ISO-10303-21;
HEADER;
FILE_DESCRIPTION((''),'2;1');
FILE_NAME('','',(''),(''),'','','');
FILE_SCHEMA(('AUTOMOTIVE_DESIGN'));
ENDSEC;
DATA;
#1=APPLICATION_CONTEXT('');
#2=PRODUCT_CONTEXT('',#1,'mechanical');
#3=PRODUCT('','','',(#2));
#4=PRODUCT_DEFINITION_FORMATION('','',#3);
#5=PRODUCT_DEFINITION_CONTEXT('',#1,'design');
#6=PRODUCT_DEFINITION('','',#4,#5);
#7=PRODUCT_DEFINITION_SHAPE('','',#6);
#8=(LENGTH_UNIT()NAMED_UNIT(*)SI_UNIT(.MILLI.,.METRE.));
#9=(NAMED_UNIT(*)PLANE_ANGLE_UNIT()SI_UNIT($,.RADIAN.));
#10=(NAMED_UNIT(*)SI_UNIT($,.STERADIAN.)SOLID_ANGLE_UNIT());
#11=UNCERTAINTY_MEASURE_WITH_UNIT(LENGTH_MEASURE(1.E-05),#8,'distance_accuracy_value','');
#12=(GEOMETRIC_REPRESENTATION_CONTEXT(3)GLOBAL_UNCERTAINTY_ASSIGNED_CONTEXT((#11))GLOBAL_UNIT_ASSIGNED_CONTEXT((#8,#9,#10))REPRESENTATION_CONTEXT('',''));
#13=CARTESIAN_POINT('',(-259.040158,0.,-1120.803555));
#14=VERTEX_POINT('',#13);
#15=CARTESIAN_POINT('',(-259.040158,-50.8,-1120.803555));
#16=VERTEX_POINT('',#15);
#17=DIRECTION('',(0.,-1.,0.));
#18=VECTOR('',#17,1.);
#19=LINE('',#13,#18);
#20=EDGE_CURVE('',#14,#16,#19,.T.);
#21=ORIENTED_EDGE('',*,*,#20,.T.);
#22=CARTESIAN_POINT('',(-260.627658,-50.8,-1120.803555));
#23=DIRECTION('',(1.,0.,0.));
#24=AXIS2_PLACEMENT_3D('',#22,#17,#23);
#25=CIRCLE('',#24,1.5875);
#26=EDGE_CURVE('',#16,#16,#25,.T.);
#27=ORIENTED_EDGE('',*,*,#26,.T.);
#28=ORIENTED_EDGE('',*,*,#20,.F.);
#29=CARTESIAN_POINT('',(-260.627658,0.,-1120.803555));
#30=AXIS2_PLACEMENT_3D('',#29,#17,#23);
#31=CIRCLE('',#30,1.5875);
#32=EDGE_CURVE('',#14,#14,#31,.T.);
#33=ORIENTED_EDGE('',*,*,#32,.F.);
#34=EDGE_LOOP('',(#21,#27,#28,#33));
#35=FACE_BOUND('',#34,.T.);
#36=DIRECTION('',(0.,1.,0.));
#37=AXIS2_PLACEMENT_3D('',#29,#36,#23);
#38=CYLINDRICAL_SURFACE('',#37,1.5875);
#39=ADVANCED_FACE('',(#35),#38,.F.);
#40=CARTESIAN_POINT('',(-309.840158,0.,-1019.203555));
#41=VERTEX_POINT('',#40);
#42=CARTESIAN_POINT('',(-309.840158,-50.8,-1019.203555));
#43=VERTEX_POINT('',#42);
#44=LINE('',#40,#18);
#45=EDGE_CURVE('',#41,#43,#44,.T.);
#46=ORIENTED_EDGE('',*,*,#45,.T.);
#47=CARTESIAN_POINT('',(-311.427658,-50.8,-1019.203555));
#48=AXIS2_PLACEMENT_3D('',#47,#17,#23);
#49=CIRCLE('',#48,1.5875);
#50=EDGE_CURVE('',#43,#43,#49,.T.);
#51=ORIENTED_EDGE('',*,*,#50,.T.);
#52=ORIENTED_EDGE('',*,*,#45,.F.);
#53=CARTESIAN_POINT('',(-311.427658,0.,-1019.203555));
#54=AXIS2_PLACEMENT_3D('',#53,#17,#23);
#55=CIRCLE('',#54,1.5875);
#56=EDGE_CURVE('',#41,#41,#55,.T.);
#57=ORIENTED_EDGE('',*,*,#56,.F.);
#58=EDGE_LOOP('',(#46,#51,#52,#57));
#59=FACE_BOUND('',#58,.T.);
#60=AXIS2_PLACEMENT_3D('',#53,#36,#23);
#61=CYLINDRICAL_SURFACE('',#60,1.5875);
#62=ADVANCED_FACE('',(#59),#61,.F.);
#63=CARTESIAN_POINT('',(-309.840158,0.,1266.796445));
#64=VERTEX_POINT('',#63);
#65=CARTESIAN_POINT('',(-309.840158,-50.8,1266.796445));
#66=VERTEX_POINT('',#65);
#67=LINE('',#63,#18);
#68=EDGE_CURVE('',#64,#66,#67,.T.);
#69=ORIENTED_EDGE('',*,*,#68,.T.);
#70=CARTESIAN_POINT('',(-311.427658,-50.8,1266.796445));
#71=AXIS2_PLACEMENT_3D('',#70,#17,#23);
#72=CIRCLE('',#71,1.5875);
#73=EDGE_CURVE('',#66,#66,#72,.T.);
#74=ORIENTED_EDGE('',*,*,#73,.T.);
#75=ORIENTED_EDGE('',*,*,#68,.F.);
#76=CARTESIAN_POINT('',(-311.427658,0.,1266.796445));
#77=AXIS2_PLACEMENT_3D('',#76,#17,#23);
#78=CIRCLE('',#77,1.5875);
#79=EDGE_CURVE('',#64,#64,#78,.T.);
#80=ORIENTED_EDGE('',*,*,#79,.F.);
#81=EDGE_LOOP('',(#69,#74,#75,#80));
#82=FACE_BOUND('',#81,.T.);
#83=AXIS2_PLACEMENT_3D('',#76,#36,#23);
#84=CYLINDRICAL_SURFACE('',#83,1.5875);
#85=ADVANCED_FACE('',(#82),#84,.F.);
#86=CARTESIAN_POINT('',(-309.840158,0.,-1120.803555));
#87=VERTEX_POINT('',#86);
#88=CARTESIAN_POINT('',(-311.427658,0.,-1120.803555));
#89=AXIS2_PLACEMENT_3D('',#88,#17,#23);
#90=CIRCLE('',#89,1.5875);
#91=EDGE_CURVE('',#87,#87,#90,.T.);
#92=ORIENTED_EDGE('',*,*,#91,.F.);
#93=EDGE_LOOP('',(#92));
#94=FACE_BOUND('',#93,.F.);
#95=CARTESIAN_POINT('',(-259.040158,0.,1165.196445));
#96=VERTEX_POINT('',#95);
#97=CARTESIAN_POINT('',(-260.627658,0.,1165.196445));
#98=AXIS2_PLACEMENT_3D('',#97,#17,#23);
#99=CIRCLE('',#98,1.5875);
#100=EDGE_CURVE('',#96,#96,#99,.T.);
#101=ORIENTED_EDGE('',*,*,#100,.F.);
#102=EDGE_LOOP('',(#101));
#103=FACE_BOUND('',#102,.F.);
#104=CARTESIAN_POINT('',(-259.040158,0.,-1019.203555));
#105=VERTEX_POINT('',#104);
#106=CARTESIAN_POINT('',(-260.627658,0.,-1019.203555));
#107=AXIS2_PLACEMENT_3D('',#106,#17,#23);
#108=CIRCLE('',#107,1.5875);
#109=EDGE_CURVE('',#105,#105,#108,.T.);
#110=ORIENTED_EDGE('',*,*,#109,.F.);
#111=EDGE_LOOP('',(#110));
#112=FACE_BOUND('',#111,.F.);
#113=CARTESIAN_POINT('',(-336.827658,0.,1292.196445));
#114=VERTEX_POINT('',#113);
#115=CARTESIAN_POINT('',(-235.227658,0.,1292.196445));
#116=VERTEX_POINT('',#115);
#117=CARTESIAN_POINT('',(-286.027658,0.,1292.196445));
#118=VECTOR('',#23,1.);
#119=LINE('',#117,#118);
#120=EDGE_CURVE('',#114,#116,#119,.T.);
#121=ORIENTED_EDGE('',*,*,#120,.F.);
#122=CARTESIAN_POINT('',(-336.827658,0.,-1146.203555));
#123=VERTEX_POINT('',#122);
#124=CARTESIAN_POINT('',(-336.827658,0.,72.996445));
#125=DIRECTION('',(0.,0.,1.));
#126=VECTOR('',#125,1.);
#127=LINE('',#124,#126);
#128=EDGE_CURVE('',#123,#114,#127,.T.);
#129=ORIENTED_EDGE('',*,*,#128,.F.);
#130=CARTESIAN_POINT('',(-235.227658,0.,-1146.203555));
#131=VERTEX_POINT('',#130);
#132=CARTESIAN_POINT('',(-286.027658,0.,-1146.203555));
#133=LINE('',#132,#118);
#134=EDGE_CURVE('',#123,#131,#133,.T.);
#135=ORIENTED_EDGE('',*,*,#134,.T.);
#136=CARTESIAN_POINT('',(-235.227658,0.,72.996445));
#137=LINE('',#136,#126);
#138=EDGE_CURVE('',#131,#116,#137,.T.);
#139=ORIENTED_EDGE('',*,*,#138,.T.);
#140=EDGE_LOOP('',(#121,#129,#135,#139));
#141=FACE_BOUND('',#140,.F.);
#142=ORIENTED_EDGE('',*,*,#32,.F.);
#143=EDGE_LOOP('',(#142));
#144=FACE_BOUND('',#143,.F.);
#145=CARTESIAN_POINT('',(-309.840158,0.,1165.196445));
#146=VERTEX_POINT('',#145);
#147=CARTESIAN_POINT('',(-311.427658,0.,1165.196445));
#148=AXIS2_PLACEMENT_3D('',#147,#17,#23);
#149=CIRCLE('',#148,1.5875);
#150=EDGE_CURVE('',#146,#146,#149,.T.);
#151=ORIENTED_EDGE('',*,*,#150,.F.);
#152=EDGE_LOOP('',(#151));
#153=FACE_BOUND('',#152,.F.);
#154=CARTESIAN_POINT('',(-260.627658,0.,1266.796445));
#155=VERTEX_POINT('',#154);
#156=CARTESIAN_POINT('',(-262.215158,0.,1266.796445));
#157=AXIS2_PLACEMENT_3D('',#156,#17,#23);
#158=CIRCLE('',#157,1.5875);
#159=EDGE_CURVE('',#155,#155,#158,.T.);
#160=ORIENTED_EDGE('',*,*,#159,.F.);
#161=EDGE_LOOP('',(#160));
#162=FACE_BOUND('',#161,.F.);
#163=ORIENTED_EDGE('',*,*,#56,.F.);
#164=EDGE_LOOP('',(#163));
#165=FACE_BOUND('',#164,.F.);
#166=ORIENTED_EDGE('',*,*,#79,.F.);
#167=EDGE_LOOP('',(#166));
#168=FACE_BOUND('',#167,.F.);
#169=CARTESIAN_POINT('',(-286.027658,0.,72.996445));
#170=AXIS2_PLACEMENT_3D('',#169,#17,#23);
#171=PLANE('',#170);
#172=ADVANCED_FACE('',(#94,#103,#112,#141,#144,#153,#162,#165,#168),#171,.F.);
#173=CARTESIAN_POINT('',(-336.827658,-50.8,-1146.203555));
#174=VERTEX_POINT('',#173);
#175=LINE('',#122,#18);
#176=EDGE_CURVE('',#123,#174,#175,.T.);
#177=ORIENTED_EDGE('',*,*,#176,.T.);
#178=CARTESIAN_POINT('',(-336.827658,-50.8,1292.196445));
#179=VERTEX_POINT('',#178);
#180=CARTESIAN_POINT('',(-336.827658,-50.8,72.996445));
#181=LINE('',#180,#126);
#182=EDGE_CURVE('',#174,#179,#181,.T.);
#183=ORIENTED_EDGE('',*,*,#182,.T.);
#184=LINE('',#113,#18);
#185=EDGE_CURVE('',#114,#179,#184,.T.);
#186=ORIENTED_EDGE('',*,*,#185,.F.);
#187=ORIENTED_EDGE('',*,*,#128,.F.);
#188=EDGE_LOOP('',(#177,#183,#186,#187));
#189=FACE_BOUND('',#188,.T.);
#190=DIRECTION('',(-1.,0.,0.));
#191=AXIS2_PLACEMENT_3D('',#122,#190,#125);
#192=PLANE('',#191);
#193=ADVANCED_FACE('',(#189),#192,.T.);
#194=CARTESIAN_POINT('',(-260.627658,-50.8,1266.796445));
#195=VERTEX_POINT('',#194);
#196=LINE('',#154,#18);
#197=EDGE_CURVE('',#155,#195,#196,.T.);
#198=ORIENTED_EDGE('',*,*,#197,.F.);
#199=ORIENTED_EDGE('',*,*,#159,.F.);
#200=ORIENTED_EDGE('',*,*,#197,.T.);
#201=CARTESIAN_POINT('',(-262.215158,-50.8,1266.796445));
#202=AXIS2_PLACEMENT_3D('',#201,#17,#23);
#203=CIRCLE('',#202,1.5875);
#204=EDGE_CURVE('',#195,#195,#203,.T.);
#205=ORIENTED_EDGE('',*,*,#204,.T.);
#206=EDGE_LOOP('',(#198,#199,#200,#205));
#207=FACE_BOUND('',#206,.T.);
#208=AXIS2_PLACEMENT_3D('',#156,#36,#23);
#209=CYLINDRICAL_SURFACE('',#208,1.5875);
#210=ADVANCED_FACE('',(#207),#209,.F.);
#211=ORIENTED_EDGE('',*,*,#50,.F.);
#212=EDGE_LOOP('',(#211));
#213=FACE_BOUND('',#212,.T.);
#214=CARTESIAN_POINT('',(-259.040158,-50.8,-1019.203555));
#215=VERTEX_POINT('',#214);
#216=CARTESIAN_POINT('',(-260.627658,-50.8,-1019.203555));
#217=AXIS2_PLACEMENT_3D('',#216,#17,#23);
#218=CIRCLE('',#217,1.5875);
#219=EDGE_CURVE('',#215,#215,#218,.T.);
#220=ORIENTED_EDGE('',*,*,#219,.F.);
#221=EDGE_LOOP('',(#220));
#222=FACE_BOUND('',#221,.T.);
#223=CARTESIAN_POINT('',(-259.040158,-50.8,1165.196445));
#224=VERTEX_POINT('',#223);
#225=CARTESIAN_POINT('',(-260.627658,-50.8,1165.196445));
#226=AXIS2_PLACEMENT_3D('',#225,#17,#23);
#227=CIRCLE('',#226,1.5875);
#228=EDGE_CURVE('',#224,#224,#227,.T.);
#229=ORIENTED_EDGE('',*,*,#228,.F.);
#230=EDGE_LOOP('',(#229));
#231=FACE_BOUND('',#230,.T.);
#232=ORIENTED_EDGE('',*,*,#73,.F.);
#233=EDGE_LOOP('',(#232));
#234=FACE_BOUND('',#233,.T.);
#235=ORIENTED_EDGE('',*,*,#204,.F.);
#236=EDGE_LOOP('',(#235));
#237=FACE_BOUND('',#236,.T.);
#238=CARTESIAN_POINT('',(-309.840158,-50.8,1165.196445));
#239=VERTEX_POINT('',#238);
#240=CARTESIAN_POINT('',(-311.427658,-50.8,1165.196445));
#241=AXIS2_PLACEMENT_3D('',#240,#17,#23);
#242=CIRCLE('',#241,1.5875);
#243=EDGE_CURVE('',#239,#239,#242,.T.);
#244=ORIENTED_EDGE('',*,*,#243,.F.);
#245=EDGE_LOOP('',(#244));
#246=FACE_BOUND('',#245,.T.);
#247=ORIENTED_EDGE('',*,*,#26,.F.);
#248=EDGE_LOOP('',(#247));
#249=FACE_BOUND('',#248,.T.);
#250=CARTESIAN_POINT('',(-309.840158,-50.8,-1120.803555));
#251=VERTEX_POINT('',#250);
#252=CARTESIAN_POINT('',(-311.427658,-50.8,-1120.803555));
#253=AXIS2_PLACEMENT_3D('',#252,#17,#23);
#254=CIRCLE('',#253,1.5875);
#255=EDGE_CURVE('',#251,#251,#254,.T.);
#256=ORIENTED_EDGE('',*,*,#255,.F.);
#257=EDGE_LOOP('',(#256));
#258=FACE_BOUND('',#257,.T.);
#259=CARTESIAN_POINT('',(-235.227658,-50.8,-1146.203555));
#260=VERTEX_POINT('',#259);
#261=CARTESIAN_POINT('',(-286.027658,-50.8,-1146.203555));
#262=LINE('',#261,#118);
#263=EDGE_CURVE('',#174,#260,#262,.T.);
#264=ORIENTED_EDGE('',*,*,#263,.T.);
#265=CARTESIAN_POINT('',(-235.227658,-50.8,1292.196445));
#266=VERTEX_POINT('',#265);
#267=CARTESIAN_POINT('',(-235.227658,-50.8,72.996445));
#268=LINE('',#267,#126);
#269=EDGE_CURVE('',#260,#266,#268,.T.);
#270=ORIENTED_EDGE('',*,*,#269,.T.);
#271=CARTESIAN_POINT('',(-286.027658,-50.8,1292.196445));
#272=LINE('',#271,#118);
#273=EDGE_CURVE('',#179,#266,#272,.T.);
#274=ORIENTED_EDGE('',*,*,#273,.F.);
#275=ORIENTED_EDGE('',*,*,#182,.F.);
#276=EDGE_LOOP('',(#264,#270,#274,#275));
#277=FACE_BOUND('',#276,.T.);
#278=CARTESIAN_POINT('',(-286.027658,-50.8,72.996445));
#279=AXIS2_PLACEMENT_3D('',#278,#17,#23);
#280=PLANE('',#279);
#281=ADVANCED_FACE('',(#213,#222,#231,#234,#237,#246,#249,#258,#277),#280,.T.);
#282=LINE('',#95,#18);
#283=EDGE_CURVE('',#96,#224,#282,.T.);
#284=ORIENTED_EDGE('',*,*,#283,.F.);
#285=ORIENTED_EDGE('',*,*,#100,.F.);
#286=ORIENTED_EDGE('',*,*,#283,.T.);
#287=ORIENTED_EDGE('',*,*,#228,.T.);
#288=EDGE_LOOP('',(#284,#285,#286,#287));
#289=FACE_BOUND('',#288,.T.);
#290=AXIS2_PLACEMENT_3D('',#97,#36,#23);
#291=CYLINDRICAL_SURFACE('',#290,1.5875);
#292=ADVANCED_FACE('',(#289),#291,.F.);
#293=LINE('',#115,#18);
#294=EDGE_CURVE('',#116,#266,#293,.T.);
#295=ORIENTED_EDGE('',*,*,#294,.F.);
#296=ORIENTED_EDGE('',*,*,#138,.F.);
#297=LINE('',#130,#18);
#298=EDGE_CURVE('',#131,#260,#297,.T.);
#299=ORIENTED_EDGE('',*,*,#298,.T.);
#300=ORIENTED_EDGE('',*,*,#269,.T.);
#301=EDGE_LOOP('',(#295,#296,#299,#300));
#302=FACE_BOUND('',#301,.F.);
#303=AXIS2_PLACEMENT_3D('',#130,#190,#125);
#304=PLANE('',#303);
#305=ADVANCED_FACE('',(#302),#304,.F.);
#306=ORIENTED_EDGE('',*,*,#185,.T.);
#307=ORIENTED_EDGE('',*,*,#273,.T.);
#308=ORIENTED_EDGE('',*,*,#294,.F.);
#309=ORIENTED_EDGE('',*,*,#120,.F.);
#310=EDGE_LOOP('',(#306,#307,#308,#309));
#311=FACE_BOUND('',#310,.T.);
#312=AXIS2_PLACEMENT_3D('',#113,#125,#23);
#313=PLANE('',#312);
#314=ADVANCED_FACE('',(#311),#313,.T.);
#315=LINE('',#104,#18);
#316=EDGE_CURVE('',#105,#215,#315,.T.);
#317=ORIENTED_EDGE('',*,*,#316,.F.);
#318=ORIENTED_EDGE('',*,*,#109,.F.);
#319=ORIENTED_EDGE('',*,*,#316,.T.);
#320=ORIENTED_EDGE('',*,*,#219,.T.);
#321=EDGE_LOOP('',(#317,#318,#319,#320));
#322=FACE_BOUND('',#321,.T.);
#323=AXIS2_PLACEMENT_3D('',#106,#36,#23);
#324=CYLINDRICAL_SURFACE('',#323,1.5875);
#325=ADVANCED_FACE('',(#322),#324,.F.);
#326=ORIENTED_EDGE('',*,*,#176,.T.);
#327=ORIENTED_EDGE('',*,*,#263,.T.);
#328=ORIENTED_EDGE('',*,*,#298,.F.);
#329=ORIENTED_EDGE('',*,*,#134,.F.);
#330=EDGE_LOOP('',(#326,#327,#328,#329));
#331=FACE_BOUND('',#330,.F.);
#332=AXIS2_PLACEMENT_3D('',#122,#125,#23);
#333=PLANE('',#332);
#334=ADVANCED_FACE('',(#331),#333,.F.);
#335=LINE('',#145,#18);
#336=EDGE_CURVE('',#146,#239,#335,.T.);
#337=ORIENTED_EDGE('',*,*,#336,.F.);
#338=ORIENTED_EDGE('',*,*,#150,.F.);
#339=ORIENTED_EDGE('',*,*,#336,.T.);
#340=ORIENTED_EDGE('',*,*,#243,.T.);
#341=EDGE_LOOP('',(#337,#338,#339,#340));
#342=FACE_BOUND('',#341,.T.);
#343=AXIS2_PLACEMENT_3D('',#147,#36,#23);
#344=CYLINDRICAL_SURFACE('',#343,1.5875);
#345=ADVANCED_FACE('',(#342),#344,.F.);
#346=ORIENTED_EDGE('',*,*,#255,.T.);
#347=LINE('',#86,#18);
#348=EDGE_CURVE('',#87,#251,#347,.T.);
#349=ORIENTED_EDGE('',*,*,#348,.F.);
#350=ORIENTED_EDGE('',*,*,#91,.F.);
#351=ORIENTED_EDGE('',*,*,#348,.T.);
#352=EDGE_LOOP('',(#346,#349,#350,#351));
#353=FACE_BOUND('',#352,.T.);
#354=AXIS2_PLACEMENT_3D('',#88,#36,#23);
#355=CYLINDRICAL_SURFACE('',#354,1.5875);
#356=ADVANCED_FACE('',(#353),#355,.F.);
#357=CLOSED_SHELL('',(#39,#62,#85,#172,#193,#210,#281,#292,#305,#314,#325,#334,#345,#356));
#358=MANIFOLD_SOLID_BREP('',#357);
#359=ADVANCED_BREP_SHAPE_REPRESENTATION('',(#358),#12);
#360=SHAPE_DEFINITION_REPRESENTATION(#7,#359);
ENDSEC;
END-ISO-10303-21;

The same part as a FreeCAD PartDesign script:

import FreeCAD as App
import Part
import Sketcher

V = App.Vector
Q = App.Units.Quantity


def add_polygon(sketch, points):
    """Adds a closed chain of lines whose ends are joined by coincident constraints."""
    first, n = sketch.GeometryCount, len(points)
    for a, b in zip(points, points[1:] + points[:1]):
        sketch.addGeometry(Part.LineSegment(App.Vector(*a, 0), App.Vector(*b, 0)), False)
    for i in range(n):
        sketch.addConstraint(Sketcher.Constraint("Coincident", first + i, 2, first + (i + 1) % n, 1))

doc = App.newDocument("Part")
body = doc.addObject("PartDesign::Body", "Body")

sketch1 = body.newObject("Sketcher::SketchObject", "Sketch")
sketch1.AttachmentSupport = (doc.getObject("XZ_Plane"), [""])
sketch1.MapMode = "FlatFace"
add_polygon(sketch1, [(-336.827658, 1292.196445), (-336.827658, -1146.203555), (-235.227658, -1146.203555), (-235.227658, 1292.196445)])
sketch1.addGeometry(Part.Circle(V(-311.427658, -1120.803555, 0), V(0, 0, 1), 1.5875), False)
sketch1.addGeometry(Part.Circle(V(-311.427658, -1019.203555, 0), V(0, 0, 1), 1.5875), False)
sketch1.addGeometry(Part.Circle(V(-260.627658, -1120.803555, 0), V(0, 0, 1), 1.5875), False)
sketch1.addGeometry(Part.Circle(V(-260.627658, -1019.203555, 0), V(0, 0, 1), 1.5875), False)
sketch1.addGeometry(Part.Circle(V(-311.427658, 1165.196445, 0), V(0, 0, 1), 1.5875), False)
sketch1.addGeometry(Part.Circle(V(-311.427658, 1266.796445, 0), V(0, 0, 1), 1.5875), False)
sketch1.addGeometry(Part.Circle(V(-260.627658, 1165.196445, 0), V(0, 0, 1), 1.5875), False)
sketch1.addGeometry(Part.Circle(V(-262.215158, 1266.796445, 0), V(0, 0, 1), 1.5875), False)
sketch1.addConstraint(Sketcher.Constraint("Vertical", 0))
sketch1.addConstraint(Sketcher.Constraint("Horizontal", 1))
sketch1.addConstraint(Sketcher.Constraint("Vertical", 2))
sketch1.addConstraint(Sketcher.Constraint("Horizontal", 3))
sketch1.addConstraint(Sketcher.Constraint("Equal", 4, 5))
sketch1.addConstraint(Sketcher.Constraint("Equal", 5, 6))
sketch1.addConstraint(Sketcher.Constraint("Equal", 6, 7))
sketch1.addConstraint(Sketcher.Constraint("Equal", 7, 8))
sketch1.addConstraint(Sketcher.Constraint("Equal", 8, 9))
sketch1.addConstraint(Sketcher.Constraint("Equal", 9, 10))
sketch1.addConstraint(Sketcher.Constraint("Equal", 10, 11))
sketch1.addConstraint(Sketcher.Constraint("Horizontal", 4, 3, 6, 3))
sketch1.addConstraint(Sketcher.Constraint("Horizontal", 5, 3, 7, 3))
sketch1.addConstraint(Sketcher.Constraint("Horizontal", 8, 3, 10, 3))
sketch1.addConstraint(Sketcher.Constraint("Horizontal", 9, 3, 11, 3))
sketch1.addConstraint(Sketcher.Constraint("Vertical", 4, 3, 5, 3))
sketch1.addConstraint(Sketcher.Constraint("Vertical", 6, 3, 7, 3))
sketch1.addConstraint(Sketcher.Constraint("Vertical", 5, 3, 8, 3))
sketch1.addConstraint(Sketcher.Constraint("Vertical", 8, 3, 9, 3))
sketch1.addConstraint(Sketcher.Constraint("Vertical", 7, 3, 10, 3))
sketch1.addConstraint(Sketcher.Constraint("DistanceX", 1, 1, 1, 2, Q("4 in")))
sketch1.addConstraint(Sketcher.Constraint("DistanceY", 0, 2, 0, 1, Q("96 in")))
sketch1.addConstraint(Sketcher.Constraint("Diameter", 4, Q("0.125 in")))
sketch1.addConstraint(Sketcher.Constraint("DistanceY", 4, 3, 5, 3, Q("4 in")))
sketch1.addConstraint(Sketcher.Constraint("DistanceX", 4, 3, 6, 3, Q("2 in")))
sketch1.addConstraint(Sketcher.Constraint("DistanceY", 5, 3, 8, 3, Q("86 in")))
sketch1.addConstraint(Sketcher.Constraint("DistanceY", 8, 3, 9, 3, Q("4 in")))
sketch1.addConstraint(Sketcher.Constraint("DistanceX", 0, 2, 4, 3, Q("1 in")))
sketch1.addConstraint(Sketcher.Constraint("DistanceY", 0, 2, 4, 3, Q("1 in")))
sketch1.addConstraint(Sketcher.Constraint("DistanceX", 9, 3, 11, 3, Q("1.9375 in")))
sketch1.addConstraint(Sketcher.Constraint("DistanceX", 4, 3, -1, 1, 311.427658))
sketch1.addConstraint(Sketcher.Constraint("DistanceY", 4, 3, -1, 1, 1120.803555))
pad1 = body.newObject("PartDesign::Pad", "Pad")
pad1.Profile = sketch1
pad1.Length = Q("2 in")

doc.recompute()
